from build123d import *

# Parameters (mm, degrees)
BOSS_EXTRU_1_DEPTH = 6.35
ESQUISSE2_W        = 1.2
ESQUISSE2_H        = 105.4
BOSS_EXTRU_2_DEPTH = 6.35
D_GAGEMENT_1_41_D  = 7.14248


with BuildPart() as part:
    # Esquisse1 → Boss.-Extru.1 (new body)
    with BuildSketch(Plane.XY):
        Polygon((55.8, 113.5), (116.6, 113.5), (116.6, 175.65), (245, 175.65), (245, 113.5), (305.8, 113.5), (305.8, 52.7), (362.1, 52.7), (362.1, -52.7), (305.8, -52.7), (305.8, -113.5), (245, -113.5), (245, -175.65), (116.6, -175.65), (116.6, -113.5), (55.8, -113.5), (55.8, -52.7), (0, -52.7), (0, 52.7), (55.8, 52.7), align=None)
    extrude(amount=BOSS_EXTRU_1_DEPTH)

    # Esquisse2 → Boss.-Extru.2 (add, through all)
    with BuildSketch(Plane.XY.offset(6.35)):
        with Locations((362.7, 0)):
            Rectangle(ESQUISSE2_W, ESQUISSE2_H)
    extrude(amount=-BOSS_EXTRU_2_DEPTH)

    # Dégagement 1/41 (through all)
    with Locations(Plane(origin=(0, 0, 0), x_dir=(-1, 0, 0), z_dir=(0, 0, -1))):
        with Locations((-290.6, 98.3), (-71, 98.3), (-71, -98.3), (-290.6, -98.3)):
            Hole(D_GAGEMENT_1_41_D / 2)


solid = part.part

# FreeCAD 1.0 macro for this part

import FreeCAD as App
import Part
import Sketcher
Q = App.Units.Quantity

doc = App.newDocument("Part")
body = doc.addObject("PartDesign::Body", "Body")

sketch1 = body.newObject("Sketcher::SketchObject", "Sketch")
sketch1.AttachmentSupport = (doc.getObject("XY_Plane"), [""])
sketch1.MapMode = "FlatFace"
sketch1.addGeometry([
    Part.LineSegment(App.Vector(117, 114, 0), App.Vector(56, 114, 0)),
    Part.LineSegment(App.Vector(56, 114, 0), App.Vector(56, 53, 0)),
    Part.LineSegment(App.Vector(56, 53, 0), App.Vector(0, 53, 0)),
    Part.LineSegment(App.Vector(0, 53, 0), App.Vector(0, -53, 0)),
    Part.LineSegment(App.Vector(0, -53, 0), App.Vector(56, -53, 0)),
    Part.LineSegment(App.Vector(56, -53, 0), App.Vector(56, -114, 0)),
    Part.LineSegment(App.Vector(56, -114, 0), App.Vector(117, -114, 0)),
    Part.LineSegment(App.Vector(117, -114, 0), App.Vector(117, -176, 0)),
    Part.LineSegment(App.Vector(117, -176, 0), App.Vector(245, -176, 0)),
    Part.LineSegment(App.Vector(245, -176, 0), App.Vector(245, -114, 0)),
    Part.LineSegment(App.Vector(245, -114, 0), App.Vector(306, -114, 0)),
    Part.LineSegment(App.Vector(306, -114, 0), App.Vector(306, -53, 0)),
    Part.LineSegment(App.Vector(306, -53, 0), App.Vector(362, -53, 0)),
    Part.LineSegment(App.Vector(362, -53, 0), App.Vector(362, 53, 0)),
    Part.LineSegment(App.Vector(362, 53, 0), App.Vector(306, 53, 0)),
    Part.LineSegment(App.Vector(306, 53, 0), App.Vector(306, 114, 0)),
    Part.LineSegment(App.Vector(306, 114, 0), App.Vector(245, 114, 0)),
    Part.LineSegment(App.Vector(245, 114, 0), App.Vector(245, 176, 0)),
    Part.LineSegment(App.Vector(245, 176, 0), App.Vector(117, 176, 0)),
    Part.LineSegment(App.Vector(117, 176, 0), App.Vector(117, 114, 0)),
], False)
sketch1.addConstraint([
    Sketcher.Constraint("Coincident", 0, 2, 1, 1),
    Sketcher.Constraint("Coincident", 1, 2, 2, 1),
    Sketcher.Constraint("Coincident", 2, 2, 3, 1),
    Sketcher.Constraint("Coincident", 3, 2, 4, 1),
    Sketcher.Constraint("Coincident", 4, 2, 5, 1),
    Sketcher.Constraint("Coincident", 5, 2, 6, 1),
    Sketcher.Constraint("Coincident", 6, 2, 7, 1),
    Sketcher.Constraint("Coincident", 7, 2, 8, 1),
    Sketcher.Constraint("Coincident", 8, 2, 9, 1),
    Sketcher.Constraint("Coincident", 9, 2, 10, 1),
    Sketcher.Constraint("Coincident", 10, 2, 11, 1),
    Sketcher.Constraint("Coincident", 11, 2, 12, 1),
    Sketcher.Constraint("Coincident", 12, 2, 13, 1),
    Sketcher.Constraint("Coincident", 13, 2, 14, 1),
    Sketcher.Constraint("Coincident", 14, 2, 15, 1),
    Sketcher.Constraint("Coincident", 15, 2, 16, 1),
    Sketcher.Constraint("Coincident", 16, 2, 17, 1),
    Sketcher.Constraint("Coincident", 17, 2, 18, 1),
    Sketcher.Constraint("Coincident", 18, 2, 19, 1),
    Sketcher.Constraint("Coincident", 19, 2, 0, 1),
    Sketcher.Constraint("Horizontal", 0),
    Sketcher.Constraint("Vertical", 1),
    Sketcher.Constraint("Horizontal", 2),
    Sketcher.Constraint("Vertical", 3),
    Sketcher.Constraint("Horizontal", 4),
    Sketcher.Constraint("Vertical", 5),
    Sketcher.Constraint("Horizontal", 6),
    Sketcher.Constraint("Vertical", 7),
    Sketcher.Constraint("Horizontal", 8),
    Sketcher.Constraint("Vertical", 9),
    Sketcher.Constraint("Horizontal", 10),
    Sketcher.Constraint("Vertical", 11),
    Sketcher.Constraint("Horizontal", 12),
    Sketcher.Constraint("Vertical", 13),
    Sketcher.Constraint("Horizontal", 14),
    Sketcher.Constraint("Vertical", 15),
    Sketcher.Constraint("Horizontal", 16),
    Sketcher.Constraint("Vertical", 17),
    Sketcher.Constraint("Horizontal", 18),
    Sketcher.Constraint("Vertical", 19),
    Sketcher.Constraint("Symmetric", 2, 2, 3, 2, -1, 1),
    Sketcher.Constraint("Symmetric", 0, 2, 5, 2, -1),
    Sketcher.Constraint("Symmetric", 11, 2, 14, 2, -1),
    Sketcher.Constraint("Symmetric", 9, 2, 16, 2, -1),
    Sketcher.Constraint("Symmetric", 7, 2, 18, 2, -1),
    Sketcher.Constraint("Horizontal", 6, 2, 9, 2),
    Sketcher.Constraint("Horizontal", 4, 2, 11, 2),
    Sketcher.Constraint("Equal", 6, 10),
    Sketcher.Constraint("Equal", 16, 1),
    Sketcher.Constraint("DistanceX", 0, 2, 0, 1, Q("60.8 mm")),
    Sketcher.Constraint("DistanceX", 2, 2, 2, 1, Q("55.8 mm")),
    Sketcher.Constraint("DistanceX", 8, 1, 8, 2, Q("128.4 mm")),
    Sketcher.Constraint("DistanceX", 12, 1, 12, 2, Q("56.3 mm")),
    Sketcher.Constraint("DistanceY", 3, 2, 3, 1, Q("105.4 mm")),
    Sketcher.Constraint("DistanceY", 7, 2, 7, 1, Q("62.15 mm")),
])
pad1 = body.newObject("PartDesign::Pad", "Pad")
pad1.Profile = sketch1
pad1.Length = 6.35

sketch2 = body.newObject("Sketcher::SketchObject", "Sketch001")
sketch2.AttachmentSupport = (doc.getObject("XY_Plane"), [""])
sketch2.MapMode = "FlatFace"
sketch2.AttachmentOffset = App.Placement(App.Vector(0, 0, 6.35), App.Rotation())
sketch2.addGeometry([
    Part.LineSegment(App.Vector(362.1, 52.7, 0), App.Vector(362.1, -52.7, 0)),
    Part.LineSegment(App.Vector(362.1, -52.7, 0), App.Vector(363.3, -52.7, 0)),
    Part.LineSegment(App.Vector(363.3, -52.7, 0), App.Vector(363.3, 52.7, 0)),
    Part.LineSegment(App.Vector(363.3, 52.7, 0), App.Vector(362.1, 52.7, 0)),
], False)
sketch2.addConstraint([
    Sketcher.Constraint("Coincident", 0, 2, 1, 1),
    Sketcher.Constraint("Coincident", 1, 2, 2, 1),
    Sketcher.Constraint("Coincident", 2, 2, 3, 1),
    Sketcher.Constraint("Coincident", 3, 2, 0, 1),
    Sketcher.Constraint("Vertical", 0),
    Sketcher.Constraint("Horizontal", 1),
    Sketcher.Constraint("Vertical", 2),
    Sketcher.Constraint("Horizontal", 3),
    Sketcher.Constraint("DistanceX", 1, 1, 1, 2, Q("1.2 mm")),
    Sketcher.Constraint("DistanceY", 0, 2, 0, 1, Q("105.4 mm")),
    Sketcher.Constraint("DistanceX", -1, 1, 0, 2, Q("362.1 mm")),
    Sketcher.Constraint("DistanceY", 0, 2, -1, 1, Q("52.7 mm")),
])
pad2 = body.newObject("PartDesign::Pad", "Pad001")
pad2.Profile = sketch2
pad2.Length = 6.35
pad2.Reversed = True

sketch3 = body.newObject("Sketcher::SketchObject", "Sketch002")
sketch3.AttachmentSupport = (doc.getObject("XY_Plane"), [""])
sketch3.MapMode = "FlatFace"
sketch3.addGeometry([
    Part.Circle(App.Vector(290.6, 98.3, 0), App.Vector(0, 0, 1), 3.6),
    Part.Circle(App.Vector(71, 98.3, 0), App.Vector(0, 0, 1), 3.6),
    Part.Circle(App.Vector(71, -98.3, 0), App.Vector(0, 0, 1), 3.6),
    Part.Circle(App.Vector(290.6, -98.3, 0), App.Vector(0, 0, 1), 3.6),
], False)
sketch3.addConstraint([
    Sketcher.Constraint("Equal", 0, 1),
    Sketcher.Constraint("Equal", 1, 2),
    Sketcher.Constraint("Equal", 2, 3),
    Sketcher.Constraint("Symmetric", 1, 3, 2, 3, -1),
    Sketcher.Constraint("Symmetric", 0, 3, 3, 3, -1),
    Sketcher.Constraint("Horizontal", 0, 3, 1, 3),
    Sketcher.Constraint("DistanceX", -1, 1, 1, 3, Q("71 mm")),
    Sketcher.Constraint("DistanceX", -1, 1, 0, 3, Q("290.6 mm")),
    Sketcher.Constraint("DistanceY", -1, 1, 0, 3, Q("98.3 mm")),
    Sketcher.Constraint("Diameter", 0, Q("7.14248 mm")),
])
doc.recompute()
hole = body.newObject("PartDesign::Hole", "Hole")
hole.Profile = sketch3
hole.ThreadType = "None"
hole.Diameter = 7.14248
hole.DepthType = "ThroughAll"
hole.Reversed = True

doc.recompute()
